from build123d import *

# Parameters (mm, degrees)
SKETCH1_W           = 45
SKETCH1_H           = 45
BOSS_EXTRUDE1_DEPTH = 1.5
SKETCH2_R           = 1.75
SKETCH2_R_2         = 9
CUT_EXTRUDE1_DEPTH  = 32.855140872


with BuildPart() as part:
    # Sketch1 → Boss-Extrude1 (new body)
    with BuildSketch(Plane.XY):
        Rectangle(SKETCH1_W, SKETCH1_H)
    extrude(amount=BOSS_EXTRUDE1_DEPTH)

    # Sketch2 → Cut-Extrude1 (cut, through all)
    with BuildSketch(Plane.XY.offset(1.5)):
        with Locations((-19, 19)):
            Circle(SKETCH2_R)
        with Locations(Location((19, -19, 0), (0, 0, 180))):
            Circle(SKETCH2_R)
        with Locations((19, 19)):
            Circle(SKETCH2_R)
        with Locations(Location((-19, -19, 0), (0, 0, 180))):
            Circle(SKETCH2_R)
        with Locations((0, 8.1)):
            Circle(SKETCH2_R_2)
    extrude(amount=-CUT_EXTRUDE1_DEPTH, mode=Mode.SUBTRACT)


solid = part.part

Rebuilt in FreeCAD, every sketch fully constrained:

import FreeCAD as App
import Part
import Sketcher
from FreeCAD import Vector


def add_polygon(sketch, points):
    """Adds a closed chain of lines whose ends are joined by coincident constraints."""
    first, n = sketch.GeometryCount, len(points)
    for a, b in zip(points, points[1:] + points[:1]):
        sketch.addGeometry(Part.LineSegment(App.Vector(*a, 0), App.Vector(*b, 0)), False)
    for i in range(n):
        sketch.addConstraint(Sketcher.Constraint("Coincident", first + i, 2, first + (i + 1) % n, 1))

doc = App.newDocument("Part")
body = doc.addObject("PartDesign::Body", "Body")

# Sketch on XY plane
sketch1 = body.newObject("Sketcher::SketchObject", "Sketch")
sketch1.AttachmentSupport = (doc.getObject("XY_Plane"), [""])
sketch1.MapMode = "FlatFace"
add_polygon(sketch1, [(-22.5, 22.5), (-22.5, -22.5), (22.5, -22.5), (22.5, 22.5)])  # lines 0-3
sketch1.addConstraint([
    Sketcher.Constraint("Vertical", 0),
    Sketcher.Constraint("Horizontal", 1),
    Sketcher.Constraint("Vertical", 2),
    Sketcher.Constraint("Horizontal", 3),
    Sketcher.Constraint("Symmetric", 0, 2, 2, 2, -1, 1),
    Sketcher.Constraint("Equal", 3, 0),
    Sketcher.Constraint("DistanceX", 1, 1, 1, 2, 45.0),
])
pad1 = body.newObject("PartDesign::Pad", "Pad")
pad1.Profile = sketch1
pad1.Length = 1.5

# Sketch on XY plane
sketch2 = body.newObject("Sketcher::SketchObject", "Sketch001")
sketch2.AttachmentSupport = (doc.getObject("XY_Plane"), [""])
sketch2.MapMode = "FlatFace"
sketch2.AttachmentOffset = App.Placement(Vector(0, 0, 1.5), App.Rotation())
sketch2.addGeometry([
    Part.Circle(Vector(-19, 19, 0), Vector(0, 0, 1), 1.75),  # 0
    Part.Circle(Vector(19, -19, 0), Vector(0, 0, 1), 1.75),  # 1
    Part.Circle(Vector(19, 19, 0), Vector(0, 0, 1), 1.75),  # 2
    Part.Circle(Vector(-19, -19, 0), Vector(0, 0, 1), 1.75),  # 3
    Part.Circle(Vector(0, 8.1, 0), Vector(0, 0, 1), 9),  # 4
], False)
sketch2.addConstraint([
    Sketcher.Constraint("Equal", 0, 1),
    Sketcher.Constraint("Equal", 1, 2),
    Sketcher.Constraint("Equal", 2, 3),
    Sketcher.Constraint("Symmetric", 0, 3, 1, 3, -1, 1),
    Sketcher.Constraint("Symmetric", 2, 3, 3, 3, -1, 1),
    Sketcher.Constraint("Symmetric", 0, 3, 2, 3, -2),
    Sketcher.Constraint("PointOnObject", 4, 3, -2),
    Sketcher.Constraint("Diameter", 4, 18.0),
    Sketcher.Constraint("Diameter", 0, 3.5),
    Sketcher.Constraint("DistanceX", 0, 3, -1, 1, 19.0),
    Sketcher.Constraint("DistanceY", -1, 1, 0, 3, 19.0),
    Sketcher.Constraint("DistanceY", -1, 1, 4, 3, 8.1),
])
pocket1 = body.newObject("PartDesign::Pocket", "Pocket")
pocket1.Profile = sketch2
pocket1.Type = "ThroughAll"

doc.recompute()
